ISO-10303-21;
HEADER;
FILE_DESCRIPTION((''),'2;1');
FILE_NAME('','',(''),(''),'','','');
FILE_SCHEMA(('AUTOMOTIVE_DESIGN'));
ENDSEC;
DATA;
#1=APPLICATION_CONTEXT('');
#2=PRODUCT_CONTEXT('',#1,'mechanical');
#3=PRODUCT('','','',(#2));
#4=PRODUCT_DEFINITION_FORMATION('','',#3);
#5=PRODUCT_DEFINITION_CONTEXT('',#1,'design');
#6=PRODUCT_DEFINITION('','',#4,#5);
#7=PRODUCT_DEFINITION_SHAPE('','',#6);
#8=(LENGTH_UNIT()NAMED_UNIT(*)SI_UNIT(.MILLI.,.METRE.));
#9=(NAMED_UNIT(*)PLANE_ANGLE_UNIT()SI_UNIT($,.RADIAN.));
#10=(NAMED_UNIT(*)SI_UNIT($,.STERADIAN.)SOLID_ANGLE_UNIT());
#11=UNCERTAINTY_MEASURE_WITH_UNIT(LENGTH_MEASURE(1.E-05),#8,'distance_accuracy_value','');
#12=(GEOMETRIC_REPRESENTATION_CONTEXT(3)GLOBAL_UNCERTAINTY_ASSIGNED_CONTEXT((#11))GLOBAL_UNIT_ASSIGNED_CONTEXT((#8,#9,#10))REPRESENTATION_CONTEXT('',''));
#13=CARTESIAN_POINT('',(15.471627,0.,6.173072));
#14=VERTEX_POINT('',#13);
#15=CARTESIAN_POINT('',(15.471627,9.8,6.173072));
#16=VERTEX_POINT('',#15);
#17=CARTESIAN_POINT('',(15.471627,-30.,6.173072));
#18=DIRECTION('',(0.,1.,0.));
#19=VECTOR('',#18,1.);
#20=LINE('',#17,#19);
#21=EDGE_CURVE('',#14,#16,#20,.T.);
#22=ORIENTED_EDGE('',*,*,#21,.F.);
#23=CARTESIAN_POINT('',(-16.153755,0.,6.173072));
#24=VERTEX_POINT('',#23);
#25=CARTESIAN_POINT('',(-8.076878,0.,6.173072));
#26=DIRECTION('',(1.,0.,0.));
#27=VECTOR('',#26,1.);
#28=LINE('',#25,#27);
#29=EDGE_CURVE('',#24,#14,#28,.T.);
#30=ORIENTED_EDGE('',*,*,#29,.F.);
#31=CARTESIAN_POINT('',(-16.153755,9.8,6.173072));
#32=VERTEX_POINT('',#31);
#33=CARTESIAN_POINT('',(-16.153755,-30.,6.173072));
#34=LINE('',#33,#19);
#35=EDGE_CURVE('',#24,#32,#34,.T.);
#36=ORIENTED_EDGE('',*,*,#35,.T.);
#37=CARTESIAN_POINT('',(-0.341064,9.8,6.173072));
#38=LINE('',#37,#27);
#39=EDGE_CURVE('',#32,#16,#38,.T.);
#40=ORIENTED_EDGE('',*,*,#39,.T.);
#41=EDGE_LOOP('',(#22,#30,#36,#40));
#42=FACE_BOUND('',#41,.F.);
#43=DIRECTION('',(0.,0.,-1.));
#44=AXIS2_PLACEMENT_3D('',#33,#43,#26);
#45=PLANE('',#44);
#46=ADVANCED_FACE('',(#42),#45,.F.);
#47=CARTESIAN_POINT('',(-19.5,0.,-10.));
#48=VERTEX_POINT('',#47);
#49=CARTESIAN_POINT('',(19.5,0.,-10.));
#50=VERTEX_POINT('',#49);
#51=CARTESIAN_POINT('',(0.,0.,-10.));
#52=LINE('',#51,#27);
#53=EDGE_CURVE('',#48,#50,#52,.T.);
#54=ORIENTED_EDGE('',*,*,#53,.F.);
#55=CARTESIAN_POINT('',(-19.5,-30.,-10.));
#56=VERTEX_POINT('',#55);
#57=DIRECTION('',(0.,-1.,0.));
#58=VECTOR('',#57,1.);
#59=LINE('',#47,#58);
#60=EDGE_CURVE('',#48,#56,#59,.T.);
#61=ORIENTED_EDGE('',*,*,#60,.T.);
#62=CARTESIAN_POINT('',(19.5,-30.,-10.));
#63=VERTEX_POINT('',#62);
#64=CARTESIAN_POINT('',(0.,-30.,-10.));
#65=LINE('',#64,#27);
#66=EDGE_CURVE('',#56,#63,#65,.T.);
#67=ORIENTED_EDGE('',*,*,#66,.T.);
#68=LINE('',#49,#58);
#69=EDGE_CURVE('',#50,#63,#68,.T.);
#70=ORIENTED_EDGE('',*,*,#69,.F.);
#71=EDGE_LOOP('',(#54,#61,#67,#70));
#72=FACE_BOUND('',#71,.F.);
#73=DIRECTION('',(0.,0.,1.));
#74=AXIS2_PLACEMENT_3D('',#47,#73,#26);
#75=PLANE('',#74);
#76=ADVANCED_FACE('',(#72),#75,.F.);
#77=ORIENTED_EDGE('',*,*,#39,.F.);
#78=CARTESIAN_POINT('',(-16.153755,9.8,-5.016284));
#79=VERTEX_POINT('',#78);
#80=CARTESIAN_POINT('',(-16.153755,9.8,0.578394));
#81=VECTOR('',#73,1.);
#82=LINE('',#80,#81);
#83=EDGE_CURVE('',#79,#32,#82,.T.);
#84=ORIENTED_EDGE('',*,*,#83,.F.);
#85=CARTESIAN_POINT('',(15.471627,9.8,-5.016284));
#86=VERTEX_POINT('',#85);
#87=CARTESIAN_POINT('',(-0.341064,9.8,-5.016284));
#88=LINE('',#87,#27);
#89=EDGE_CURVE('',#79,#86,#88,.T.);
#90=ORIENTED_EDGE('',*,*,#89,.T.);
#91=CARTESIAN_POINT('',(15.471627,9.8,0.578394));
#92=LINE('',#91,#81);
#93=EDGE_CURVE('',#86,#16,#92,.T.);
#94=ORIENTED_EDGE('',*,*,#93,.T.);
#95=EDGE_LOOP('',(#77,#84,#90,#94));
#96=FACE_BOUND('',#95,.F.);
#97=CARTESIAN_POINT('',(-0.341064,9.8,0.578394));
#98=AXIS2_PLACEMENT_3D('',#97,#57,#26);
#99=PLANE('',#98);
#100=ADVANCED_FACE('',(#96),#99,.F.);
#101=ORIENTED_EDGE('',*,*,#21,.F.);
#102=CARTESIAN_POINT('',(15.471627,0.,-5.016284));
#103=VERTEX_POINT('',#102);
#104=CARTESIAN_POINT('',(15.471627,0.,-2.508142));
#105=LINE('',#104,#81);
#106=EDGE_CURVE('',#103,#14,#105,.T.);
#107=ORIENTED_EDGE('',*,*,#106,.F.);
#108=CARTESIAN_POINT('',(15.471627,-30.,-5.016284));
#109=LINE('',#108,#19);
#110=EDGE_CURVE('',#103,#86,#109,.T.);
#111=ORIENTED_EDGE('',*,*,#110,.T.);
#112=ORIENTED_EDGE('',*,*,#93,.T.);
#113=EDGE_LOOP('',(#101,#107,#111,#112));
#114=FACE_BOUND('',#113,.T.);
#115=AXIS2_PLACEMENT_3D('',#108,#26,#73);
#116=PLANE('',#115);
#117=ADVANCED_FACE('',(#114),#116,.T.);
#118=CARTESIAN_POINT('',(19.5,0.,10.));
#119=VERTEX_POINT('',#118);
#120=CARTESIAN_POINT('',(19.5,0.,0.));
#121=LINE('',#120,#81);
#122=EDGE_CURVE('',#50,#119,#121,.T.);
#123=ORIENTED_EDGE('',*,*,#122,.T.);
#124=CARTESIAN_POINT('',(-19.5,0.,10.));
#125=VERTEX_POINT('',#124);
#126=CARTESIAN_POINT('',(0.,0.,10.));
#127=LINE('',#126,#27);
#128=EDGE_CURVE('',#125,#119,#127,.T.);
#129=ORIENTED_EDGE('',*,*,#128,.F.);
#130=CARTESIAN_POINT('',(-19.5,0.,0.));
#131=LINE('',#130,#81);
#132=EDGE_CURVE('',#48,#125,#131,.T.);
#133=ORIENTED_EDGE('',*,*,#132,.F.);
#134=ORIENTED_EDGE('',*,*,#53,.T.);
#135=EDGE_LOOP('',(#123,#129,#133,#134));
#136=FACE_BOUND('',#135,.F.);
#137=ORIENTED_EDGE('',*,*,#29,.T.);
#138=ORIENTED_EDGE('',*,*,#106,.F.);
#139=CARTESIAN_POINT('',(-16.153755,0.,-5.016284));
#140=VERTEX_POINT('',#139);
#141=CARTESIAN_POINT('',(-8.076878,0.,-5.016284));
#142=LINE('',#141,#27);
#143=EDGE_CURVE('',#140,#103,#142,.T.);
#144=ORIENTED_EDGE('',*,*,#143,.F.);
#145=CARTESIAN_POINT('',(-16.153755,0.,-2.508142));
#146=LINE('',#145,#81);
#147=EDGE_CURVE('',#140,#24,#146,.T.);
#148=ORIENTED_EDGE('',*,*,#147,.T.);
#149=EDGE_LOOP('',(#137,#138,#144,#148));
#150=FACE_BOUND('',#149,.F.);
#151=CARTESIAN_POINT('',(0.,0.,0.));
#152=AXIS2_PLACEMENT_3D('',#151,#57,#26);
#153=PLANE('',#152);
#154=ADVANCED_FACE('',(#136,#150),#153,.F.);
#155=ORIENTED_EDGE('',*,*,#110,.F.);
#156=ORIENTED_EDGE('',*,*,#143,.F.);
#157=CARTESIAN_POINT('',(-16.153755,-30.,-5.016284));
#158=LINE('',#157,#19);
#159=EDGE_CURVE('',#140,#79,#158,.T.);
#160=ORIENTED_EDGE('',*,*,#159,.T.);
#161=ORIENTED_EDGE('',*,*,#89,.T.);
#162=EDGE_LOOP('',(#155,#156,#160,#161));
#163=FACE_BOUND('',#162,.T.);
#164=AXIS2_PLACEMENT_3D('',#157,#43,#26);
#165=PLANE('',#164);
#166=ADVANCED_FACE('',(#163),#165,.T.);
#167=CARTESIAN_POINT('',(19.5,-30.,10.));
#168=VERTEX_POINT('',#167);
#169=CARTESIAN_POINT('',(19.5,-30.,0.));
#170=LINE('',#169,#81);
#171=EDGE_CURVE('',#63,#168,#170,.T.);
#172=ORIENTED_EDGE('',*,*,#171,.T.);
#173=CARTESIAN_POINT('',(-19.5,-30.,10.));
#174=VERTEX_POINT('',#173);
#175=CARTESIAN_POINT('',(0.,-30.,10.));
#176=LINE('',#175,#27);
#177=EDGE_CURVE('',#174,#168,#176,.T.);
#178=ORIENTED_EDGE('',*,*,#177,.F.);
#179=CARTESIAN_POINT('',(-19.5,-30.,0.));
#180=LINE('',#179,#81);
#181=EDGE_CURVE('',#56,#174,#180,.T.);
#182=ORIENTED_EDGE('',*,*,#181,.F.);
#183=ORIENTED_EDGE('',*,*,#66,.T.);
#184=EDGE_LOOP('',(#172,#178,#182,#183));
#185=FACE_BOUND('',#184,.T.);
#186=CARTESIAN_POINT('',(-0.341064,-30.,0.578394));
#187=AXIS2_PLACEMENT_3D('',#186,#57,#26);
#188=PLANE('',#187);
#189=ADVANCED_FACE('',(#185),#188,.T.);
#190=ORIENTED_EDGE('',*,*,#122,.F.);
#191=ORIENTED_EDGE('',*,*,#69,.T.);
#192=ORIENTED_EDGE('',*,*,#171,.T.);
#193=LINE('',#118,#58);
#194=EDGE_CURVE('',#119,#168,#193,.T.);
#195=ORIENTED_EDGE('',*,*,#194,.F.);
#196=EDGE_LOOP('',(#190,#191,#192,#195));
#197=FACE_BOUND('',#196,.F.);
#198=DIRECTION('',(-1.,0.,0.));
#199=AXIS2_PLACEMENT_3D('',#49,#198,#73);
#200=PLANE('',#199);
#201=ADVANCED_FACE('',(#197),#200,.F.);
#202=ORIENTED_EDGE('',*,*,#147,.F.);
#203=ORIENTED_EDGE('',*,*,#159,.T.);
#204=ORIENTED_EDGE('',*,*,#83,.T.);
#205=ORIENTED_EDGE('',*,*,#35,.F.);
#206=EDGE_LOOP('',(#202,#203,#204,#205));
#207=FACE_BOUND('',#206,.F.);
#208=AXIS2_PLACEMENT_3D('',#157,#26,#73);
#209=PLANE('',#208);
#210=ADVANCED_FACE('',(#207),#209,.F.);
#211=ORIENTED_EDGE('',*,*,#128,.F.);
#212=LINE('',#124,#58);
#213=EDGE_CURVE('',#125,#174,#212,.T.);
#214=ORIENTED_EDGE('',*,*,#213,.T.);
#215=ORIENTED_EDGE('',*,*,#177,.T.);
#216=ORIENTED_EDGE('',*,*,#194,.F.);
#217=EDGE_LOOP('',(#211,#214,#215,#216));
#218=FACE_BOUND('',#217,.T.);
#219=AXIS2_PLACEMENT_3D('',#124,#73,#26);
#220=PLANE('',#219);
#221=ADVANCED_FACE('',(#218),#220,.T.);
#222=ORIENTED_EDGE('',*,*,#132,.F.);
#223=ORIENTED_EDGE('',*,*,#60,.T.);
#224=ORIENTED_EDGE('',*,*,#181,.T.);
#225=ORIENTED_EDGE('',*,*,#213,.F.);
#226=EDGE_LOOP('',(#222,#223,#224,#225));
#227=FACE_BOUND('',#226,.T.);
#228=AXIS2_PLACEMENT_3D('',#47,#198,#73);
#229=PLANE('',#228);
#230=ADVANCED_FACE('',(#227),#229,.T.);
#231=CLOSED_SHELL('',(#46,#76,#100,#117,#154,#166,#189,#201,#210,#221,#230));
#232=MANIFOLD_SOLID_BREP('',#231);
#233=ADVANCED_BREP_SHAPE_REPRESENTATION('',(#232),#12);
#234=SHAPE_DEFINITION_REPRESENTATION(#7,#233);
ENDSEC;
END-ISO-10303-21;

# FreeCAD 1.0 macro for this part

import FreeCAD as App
import Part
import Sketcher

V = App.Vector
Q = App.Units.Quantity

doc = App.newDocument("Part")
body = doc.addObject("PartDesign::Body", "Body")

# Sketch on XZ plane
sketch1 = doc.addObject("Sketcher::SketchObject", "Sketch")
body.addObject(sketch1)
sketch1.AttachmentSupport = (doc.XZ_Plane, [""])
sketch1.MapMode = "FlatFace"
sketch1.addGeometry([
    Part.LineSegment(V(-19.5, 10, 0), V(-19.5, -10, 0)),
    Part.LineSegment(V(-19.5, -10, 0), V(19.5, -10, 0)),
    Part.LineSegment(V(19.5, -10, 0), V(19.5, 10, 0)),
    Part.LineSegment(V(19.5, 10, 0), V(-19.5, 10, 0)),
], False)
sketch1.addConstraint([
    Sketcher.Constraint("Coincident", 0, 2, 1, 1),
    Sketcher.Constraint("Coincident", 1, 2, 2, 1),
    Sketcher.Constraint("Coincident", 2, 2, 3, 1),
    Sketcher.Constraint("Coincident", 3, 2, 0, 1),
    Sketcher.Constraint("Vertical", 0),
    Sketcher.Constraint("Horizontal", 1),
    Sketcher.Constraint("Vertical", 2),
    Sketcher.Constraint("Horizontal", 3),
    Sketcher.Constraint("Symmetric", 0, 2, 2, 2, -1, 1),
    Sketcher.Constraint("DistanceX", 1, 1, 1, 2, Q("39 mm")),
    Sketcher.Constraint("DistanceY", 0, 2, 0, 1, Q("20 mm")),
])
pad1 = doc.addObject("PartDesign::Pad", "Pad")
body.addObject(pad1)
pad1.Profile = sketch1
pad1.Length = 30

# Sketch on XZ plane
sketch2 = doc.addObject("Sketcher::SketchObject", "Sketch001")
body.addObject(sketch2)
sketch2.AttachmentSupport = (doc.XZ_Plane, [""])
sketch2.MapMode = "FlatFace"
sketch2.AttachmentOffset = App.Placement(V(0, 0, 30), App.Rotation())
sketch2.addGeometry([
    Part.LineSegment(V(-16.153755, 6.173072, 0), V(-16.153755, -5.016284, 0)),
    Part.LineSegment(V(-16.153755, -5.016284, 0), V(15.471627, -5.016284, 0)),
    Part.LineSegment(V(15.471627, -5.016284, 0), V(15.471627, 6.173072, 0)),
    Part.LineSegment(V(15.471627, 6.173072, 0), V(-16.153755, 6.173072, 0)),
], False)
sketch2.addConstraint([
    Sketcher.Constraint("Coincident", 0, 2, 1, 1),
    Sketcher.Constraint("Coincident", 1, 2, 2, 1),
    Sketcher.Constraint("Coincident", 2, 2, 3, 1),
    Sketcher.Constraint("Coincident", 3, 2, 0, 1),
    Sketcher.Constraint("Vertical", 0),
    Sketcher.Constraint("Horizontal", 1),
    Sketcher.Constraint("Vertical", 2),
    Sketcher.Constraint("Horizontal", 3),
    Sketcher.Constraint("DistanceX", 1, 1, 1, 2, Q("31.625382 mm")),
    Sketcher.Constraint("DistanceY", 0, 2, 0, 1, Q("11.189356 mm")),
    Sketcher.Constraint("DistanceX", 0, 2, -1, 1, Q("16.153755 mm")),
    Sketcher.Constraint("DistanceY", 0, 2, -1, 1, Q("5.016284 mm")),
])
pad2 = doc.addObject("PartDesign::Pad", "Pad001")
body.addObject(pad2)
pad2.Profile = sketch2
pad2.Length = 39.8
pad2.Reversed = True

doc.recompute()
